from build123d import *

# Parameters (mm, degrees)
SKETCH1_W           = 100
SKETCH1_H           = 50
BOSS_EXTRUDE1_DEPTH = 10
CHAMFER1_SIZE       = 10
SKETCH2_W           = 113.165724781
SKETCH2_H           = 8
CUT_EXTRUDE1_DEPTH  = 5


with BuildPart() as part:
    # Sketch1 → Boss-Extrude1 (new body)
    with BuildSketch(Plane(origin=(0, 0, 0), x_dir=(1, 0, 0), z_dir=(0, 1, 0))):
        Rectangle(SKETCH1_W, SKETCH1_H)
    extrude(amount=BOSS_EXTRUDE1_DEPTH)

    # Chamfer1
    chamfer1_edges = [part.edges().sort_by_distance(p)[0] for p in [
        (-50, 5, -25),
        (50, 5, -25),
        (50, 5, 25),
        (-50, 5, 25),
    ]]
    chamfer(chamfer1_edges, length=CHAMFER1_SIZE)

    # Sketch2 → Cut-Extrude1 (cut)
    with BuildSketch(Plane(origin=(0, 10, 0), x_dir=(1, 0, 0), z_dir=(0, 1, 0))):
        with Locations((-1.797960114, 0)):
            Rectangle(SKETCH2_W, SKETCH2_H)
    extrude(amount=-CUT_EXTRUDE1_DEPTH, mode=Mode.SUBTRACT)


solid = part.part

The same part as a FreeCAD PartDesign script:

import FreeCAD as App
import Part
import Sketcher
Q = App.Units.Quantity


def edges_at(feature, points):
    """Names of the edges that pass closest to the given points."""
    edges = feature.Shape.Edges
    near = lambda p: min(range(len(edges)), key=lambda i: edges[i].distToShape(Part.Vertex(*p))[0])
    return sorted({f"Edge{near(p) + 1}" for p in points})

doc = App.newDocument("Part")
body = doc.addObject("PartDesign::Body", "Body")

# Sketch on XZ plane
sketch1 = body.newObject("Sketcher::SketchObject", "Sketch")
sketch1.AttachmentSupport = (doc.getObject("XZ_Plane"), [""])
sketch1.MapMode = "FlatFace"
sketch1.addGeometry([
    Part.LineSegment(App.Vector(-50, -25, 0), App.Vector(-50, 25, 0)),
    Part.LineSegment(App.Vector(-50, 25, 0), App.Vector(50, 25, 0)),
    Part.LineSegment(App.Vector(50, 25, 0), App.Vector(50, -25, 0)),
    Part.LineSegment(App.Vector(50, -25, 0), App.Vector(-50, -25, 0)),
], False)
sketch1.addConstraint([
    Sketcher.Constraint("Coincident", 0, 2, 1, 1),
    Sketcher.Constraint("Coincident", 1, 2, 2, 1),
    Sketcher.Constraint("Coincident", 2, 2, 3, 1),
    Sketcher.Constraint("Coincident", 3, 2, 0, 1),
    Sketcher.Constraint("Vertical", 0),
    Sketcher.Constraint("Horizontal", 1),
    Sketcher.Constraint("Vertical", 2),
    Sketcher.Constraint("Horizontal", 3),
    Sketcher.Constraint("Symmetric", 0, 2, 2, 2, -1, 1),
    Sketcher.Constraint("DistanceX", 1, 1, 1, 2, Q("100 mm")),
    Sketcher.Constraint("DistanceY", 0, 1, 0, 2, Q("50 mm")),
])
pad1 = body.newObject("PartDesign::Pad", "Pad")
pad1.Profile = sketch1
pad1.Length = 10
pad1.Reversed = True
doc.recompute()

chamfer = body.newObject("PartDesign::Chamfer", "Chamfer")
chamfer.Base = (pad1, edges_at(pad1, [
    (-50, 5, -25),
    (50, 5, -25),
    (50, 5, 25),
    (-50, 5, 25),
]))
chamfer.Size = 10

# Sketch on XZ plane
sketch2 = body.newObject("Sketcher::SketchObject", "Sketch001")
sketch2.AttachmentSupport = (doc.getObject("XZ_Plane"), [""])
sketch2.MapMode = "FlatFace"
sketch2.AttachmentOffset = App.Placement(App.Vector(0, 0, -10), App.Rotation())
sketch2.addGeometry([
    Part.LineSegment(App.Vector(-58, -4, 0), App.Vector(-58, 4, 0)),
    Part.LineSegment(App.Vector(-58, 4, 0), App.Vector(55, 4, 0)),
    Part.LineSegment(App.Vector(55, 4, 0), App.Vector(55, -4, 0)),
    Part.LineSegment(App.Vector(55, -4, 0), App.Vector(-58, -4, 0)),
], False)
sketch2.addConstraint([
    Sketcher.Constraint("Coincident", 0, 2, 1, 1),
    Sketcher.Constraint("Coincident", 1, 2, 2, 1),
    Sketcher.Constraint("Coincident", 2, 2, 3, 1),
    Sketcher.Constraint("Coincident", 3, 2, 0, 1),
    Sketcher.Constraint("Vertical", 0),
    Sketcher.Constraint("Horizontal", 1),
    Sketcher.Constraint("Vertical", 2),
    Sketcher.Constraint("Horizontal", 3),
    Sketcher.Constraint("DistanceY", 0, 1, 0, 2, Q("8 mm")),
    Sketcher.Constraint("DistanceY", -1, 1, 0, 2, Q("4 mm")),
    Sketcher.Constraint("DistanceX", 1, 1, 1, 2, Q("113.165725 mm")),
    Sketcher.Constraint("DistanceX", 0, 2, -1, 1, Q("58.380823 mm")),
])
pocket1 = body.newObject("PartDesign::Pocket", "Pocket")
pocket1.Profile = sketch2
pocket1.Length = 5
pocket1.Reversed = True

doc.recompute()
